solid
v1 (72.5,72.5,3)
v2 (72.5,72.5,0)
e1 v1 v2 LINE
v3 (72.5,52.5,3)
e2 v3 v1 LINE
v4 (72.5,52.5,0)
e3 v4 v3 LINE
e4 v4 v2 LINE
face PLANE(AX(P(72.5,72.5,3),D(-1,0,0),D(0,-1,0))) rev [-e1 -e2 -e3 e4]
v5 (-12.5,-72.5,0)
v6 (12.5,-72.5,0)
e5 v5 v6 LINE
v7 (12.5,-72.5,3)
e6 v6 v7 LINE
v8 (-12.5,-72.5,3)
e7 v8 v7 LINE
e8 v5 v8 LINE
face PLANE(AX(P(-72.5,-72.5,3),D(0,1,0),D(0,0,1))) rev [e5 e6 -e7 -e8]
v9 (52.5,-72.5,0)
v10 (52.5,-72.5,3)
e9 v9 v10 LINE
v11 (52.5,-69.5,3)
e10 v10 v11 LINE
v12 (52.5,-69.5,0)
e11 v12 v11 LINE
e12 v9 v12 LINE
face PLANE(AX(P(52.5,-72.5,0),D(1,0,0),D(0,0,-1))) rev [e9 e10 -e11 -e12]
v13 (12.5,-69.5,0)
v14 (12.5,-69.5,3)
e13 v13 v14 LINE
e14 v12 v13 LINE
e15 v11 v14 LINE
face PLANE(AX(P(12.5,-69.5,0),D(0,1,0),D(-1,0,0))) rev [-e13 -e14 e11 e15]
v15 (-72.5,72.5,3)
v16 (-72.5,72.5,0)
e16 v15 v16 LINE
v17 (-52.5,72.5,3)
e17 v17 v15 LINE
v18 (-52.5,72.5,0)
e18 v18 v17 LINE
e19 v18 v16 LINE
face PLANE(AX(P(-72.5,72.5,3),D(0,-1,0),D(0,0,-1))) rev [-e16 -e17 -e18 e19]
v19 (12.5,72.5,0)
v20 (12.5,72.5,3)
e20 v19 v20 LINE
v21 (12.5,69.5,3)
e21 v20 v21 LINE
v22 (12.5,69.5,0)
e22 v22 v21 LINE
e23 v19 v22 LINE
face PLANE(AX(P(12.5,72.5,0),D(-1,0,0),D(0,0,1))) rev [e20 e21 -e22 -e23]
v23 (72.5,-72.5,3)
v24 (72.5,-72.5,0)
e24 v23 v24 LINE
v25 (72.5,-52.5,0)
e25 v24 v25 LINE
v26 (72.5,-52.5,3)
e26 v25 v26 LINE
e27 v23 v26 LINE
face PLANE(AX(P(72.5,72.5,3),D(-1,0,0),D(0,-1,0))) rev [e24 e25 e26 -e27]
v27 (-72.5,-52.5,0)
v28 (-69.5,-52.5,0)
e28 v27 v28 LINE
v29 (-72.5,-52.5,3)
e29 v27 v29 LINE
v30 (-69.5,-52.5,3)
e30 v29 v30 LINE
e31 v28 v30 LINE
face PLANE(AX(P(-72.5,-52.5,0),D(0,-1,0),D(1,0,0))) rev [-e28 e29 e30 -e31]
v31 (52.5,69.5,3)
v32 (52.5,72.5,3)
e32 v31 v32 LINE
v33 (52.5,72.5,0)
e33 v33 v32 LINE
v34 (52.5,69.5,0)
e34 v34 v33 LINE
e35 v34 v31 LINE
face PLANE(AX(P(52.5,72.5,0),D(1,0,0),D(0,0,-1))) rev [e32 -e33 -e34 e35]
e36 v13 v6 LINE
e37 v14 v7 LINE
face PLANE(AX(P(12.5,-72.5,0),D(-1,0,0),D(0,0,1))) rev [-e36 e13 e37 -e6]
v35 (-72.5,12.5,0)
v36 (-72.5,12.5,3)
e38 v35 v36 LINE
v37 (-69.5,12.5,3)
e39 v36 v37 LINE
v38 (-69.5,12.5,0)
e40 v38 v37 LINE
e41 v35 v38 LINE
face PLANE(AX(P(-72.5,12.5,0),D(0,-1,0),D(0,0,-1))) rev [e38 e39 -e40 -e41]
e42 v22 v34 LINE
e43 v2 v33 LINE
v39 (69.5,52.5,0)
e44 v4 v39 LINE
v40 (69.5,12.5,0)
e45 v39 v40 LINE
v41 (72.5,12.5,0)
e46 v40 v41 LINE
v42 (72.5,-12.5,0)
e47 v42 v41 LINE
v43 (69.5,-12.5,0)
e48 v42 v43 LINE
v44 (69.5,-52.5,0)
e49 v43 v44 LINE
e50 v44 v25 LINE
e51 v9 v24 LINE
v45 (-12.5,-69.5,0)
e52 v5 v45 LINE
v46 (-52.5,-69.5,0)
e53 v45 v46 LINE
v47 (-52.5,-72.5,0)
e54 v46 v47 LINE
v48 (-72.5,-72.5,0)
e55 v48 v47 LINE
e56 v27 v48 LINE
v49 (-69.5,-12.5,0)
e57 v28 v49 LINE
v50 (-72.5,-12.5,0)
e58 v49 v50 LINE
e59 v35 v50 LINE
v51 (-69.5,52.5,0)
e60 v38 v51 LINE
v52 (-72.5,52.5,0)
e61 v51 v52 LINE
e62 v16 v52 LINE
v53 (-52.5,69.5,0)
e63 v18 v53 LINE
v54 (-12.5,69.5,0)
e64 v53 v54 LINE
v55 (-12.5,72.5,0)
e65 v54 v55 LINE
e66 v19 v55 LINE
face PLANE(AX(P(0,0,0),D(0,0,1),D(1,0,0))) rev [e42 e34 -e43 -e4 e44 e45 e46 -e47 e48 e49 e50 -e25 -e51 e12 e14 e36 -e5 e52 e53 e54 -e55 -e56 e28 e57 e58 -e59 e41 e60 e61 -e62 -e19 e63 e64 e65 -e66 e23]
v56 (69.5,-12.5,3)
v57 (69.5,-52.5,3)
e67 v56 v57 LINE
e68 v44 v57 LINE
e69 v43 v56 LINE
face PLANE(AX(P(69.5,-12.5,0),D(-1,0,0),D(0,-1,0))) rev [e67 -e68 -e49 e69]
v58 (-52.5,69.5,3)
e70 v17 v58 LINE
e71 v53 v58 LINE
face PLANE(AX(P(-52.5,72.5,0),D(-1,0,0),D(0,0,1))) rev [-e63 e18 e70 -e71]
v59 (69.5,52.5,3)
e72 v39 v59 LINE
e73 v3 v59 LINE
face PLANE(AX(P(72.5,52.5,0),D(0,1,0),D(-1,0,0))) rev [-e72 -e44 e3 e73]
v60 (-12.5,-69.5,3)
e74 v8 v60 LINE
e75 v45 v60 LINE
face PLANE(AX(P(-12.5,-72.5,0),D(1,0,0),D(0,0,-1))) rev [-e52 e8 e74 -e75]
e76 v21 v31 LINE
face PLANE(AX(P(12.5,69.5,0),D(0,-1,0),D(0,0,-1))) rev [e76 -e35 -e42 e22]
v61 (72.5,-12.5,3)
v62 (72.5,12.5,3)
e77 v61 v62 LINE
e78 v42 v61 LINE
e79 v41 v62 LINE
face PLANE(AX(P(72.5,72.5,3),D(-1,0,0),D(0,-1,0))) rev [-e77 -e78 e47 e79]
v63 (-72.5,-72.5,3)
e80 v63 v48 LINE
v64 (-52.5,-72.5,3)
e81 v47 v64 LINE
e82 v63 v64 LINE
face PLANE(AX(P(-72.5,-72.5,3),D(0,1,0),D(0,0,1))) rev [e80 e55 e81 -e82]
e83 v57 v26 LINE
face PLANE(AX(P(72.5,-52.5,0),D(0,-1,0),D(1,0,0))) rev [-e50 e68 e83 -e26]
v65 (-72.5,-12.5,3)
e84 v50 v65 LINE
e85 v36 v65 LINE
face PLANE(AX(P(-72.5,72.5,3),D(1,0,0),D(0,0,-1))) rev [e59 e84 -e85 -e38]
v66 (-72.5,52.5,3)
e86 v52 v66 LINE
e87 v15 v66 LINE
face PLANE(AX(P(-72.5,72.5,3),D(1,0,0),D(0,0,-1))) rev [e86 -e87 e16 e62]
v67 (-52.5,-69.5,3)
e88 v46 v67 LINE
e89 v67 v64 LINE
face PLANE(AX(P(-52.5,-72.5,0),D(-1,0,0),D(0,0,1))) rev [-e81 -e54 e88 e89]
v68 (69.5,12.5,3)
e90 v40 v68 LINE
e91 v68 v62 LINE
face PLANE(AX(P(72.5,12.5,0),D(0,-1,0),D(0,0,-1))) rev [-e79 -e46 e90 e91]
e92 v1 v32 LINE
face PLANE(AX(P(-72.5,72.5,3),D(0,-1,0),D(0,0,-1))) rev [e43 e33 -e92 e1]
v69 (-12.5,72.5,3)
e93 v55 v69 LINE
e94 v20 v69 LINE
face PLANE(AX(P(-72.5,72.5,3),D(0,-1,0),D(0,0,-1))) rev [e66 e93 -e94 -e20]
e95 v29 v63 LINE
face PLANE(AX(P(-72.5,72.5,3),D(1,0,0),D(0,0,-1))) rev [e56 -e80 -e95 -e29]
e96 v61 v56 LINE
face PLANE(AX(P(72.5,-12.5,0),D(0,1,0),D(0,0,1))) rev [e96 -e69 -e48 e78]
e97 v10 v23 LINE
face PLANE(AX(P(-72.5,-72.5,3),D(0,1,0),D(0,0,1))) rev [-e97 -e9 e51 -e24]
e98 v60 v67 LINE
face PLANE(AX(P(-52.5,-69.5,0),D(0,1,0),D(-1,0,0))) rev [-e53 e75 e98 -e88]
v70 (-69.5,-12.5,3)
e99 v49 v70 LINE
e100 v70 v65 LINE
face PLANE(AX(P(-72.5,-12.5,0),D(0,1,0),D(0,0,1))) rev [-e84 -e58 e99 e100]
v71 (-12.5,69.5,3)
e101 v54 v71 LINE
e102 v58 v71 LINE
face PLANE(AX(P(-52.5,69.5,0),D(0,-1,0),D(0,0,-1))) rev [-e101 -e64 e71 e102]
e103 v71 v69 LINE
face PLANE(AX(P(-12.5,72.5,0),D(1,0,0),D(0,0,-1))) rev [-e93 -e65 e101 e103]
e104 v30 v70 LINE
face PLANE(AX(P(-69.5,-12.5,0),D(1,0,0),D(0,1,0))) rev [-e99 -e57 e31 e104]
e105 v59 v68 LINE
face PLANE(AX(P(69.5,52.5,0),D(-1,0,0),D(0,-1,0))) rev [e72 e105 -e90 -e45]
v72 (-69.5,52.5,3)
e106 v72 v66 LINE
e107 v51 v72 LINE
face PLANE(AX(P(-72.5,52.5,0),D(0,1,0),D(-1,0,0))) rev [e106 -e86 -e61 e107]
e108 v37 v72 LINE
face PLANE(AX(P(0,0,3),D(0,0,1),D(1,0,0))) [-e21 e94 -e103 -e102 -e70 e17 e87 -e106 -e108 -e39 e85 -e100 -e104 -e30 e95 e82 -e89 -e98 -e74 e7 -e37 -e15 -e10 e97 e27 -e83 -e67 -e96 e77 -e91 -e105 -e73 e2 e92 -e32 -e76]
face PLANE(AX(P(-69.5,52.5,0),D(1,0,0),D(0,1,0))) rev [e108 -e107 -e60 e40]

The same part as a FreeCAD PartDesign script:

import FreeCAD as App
import Part
import Sketcher
from FreeCAD import Vector

doc = App.newDocument("Part")
params = doc.addObject("Spreadsheet::Sheet", "Params")
for row, (alias, value) in enumerate([
    ("sketch1_width", "145 mm"),
    ("pad1_length", "3 mm"),
    ("sketch2_width", "40 mm"),
    ("sketch2_width2", "3 mm"),
    ("pocket1_length", "3 mm"),
], start=1):
    params.set(f"A{row}", alias)
    params.set(f"B{row}", "=" + value)
    params.setAlias(f"B{row}", alias)

body = doc.addObject("PartDesign::Body", "Body")

# Sketch on XY plane
sketch1 = body.newObject("Sketcher::SketchObject", "Sketch")
sketch1.AttachmentSupport = (doc.getObject("XY_Plane"), [""])
sketch1.MapMode = "FlatFace"
sketch1.addGeometry(Part.LineSegment(Vector(-72, 72, 0), Vector(-72, -72, 0)), False)
sketch1.addGeometry(Part.LineSegment(Vector(-72, -72, 0), Vector(72, -72, 0)), False)
sketch1.addGeometry(Part.LineSegment(Vector(72, -72, 0), Vector(72, 72, 0)), False)
sketch1.addGeometry(Part.LineSegment(Vector(72, 72, 0), Vector(-72, 72, 0)), False)
sketch1.addConstraint(Sketcher.Constraint("Coincident", 0, 2, 1, 1))
sketch1.addConstraint(Sketcher.Constraint("Coincident", 1, 2, 2, 1))
sketch1.addConstraint(Sketcher.Constraint("Coincident", 2, 2, 3, 1))
sketch1.addConstraint(Sketcher.Constraint("Coincident", 3, 2, 0, 1))
sketch1.addConstraint(Sketcher.Constraint("Vertical", 0))
sketch1.addConstraint(Sketcher.Constraint("Horizontal", 1))
sketch1.addConstraint(Sketcher.Constraint("Vertical", 2))
sketch1.addConstraint(Sketcher.Constraint("Horizontal", 3))
sketch1.addConstraint(Sketcher.Constraint("Symmetric", 0, 2, 2, 2, -1, 1))
sketch1.addConstraint(Sketcher.Constraint("Equal", 3, 0))
sketch1.addConstraint(Sketcher.Constraint("DistanceX", 1, 1, 1, 2, 145.0))
sketch1.setExpression("Constraints[10]", "Params.sketch1_width")
pad1 = body.newObject("PartDesign::Pad", "Pad")
pad1.Profile = sketch1
pad1.setExpression("Length", "Params.pad1_length")

# Sketch on XY plane
sketch2 = body.newObject("Sketcher::SketchObject", "Sketch001")
sketch2.AttachmentSupport = (doc.getObject("XY_Plane"), [""])
sketch2.MapMode = "FlatFace"
sketch2.AttachmentOffset = App.Placement(Vector(0, 0, 3), App.Rotation())
sketch2.addGeometry(Part.LineSegment(Vector(-52.5, 72.5, 0), Vector(-52.5, 69.5, 0)), False)
sketch2.addGeometry(Part.LineSegment(Vector(-52.5, 69.5, 0), Vector(-12.5, 69.5, 0)), False)
sketch2.addGeometry(Part.LineSegment(Vector(-12.5, 69.5, 0), Vector(-12.5, 72.5, 0)), False)
sketch2.addGeometry(Part.LineSegment(Vector(-12.5, 72.5, 0), Vector(-52.5, 72.5, 0)), False)
sketch2.addGeometry(Part.LineSegment(Vector(12.5, 72.5, 0), Vector(12.5, 69.5, 0)), False)
sketch2.addGeometry(Part.LineSegment(Vector(12.5, 69.5, 0), Vector(52.5, 69.5, 0)), False)
sketch2.addGeometry(Part.LineSegment(Vector(52.5, 69.5, 0), Vector(52.5, 72.5, 0)), False)
sketch2.addGeometry(Part.LineSegment(Vector(52.5, 72.5, 0), Vector(12.5, 72.5, 0)), False)
sketch2.addGeometry(Part.LineSegment(Vector(-72.5, 52.5, 0), Vector(-72.5, 12.5, 0)), False)
sketch2.addGeometry(Part.LineSegment(Vector(-72.5, 12.5, 0), Vector(-69.5, 12.5, 0)), False)
sketch2.addGeometry(Part.LineSegment(Vector(-69.5, 12.5, 0), Vector(-69.5, 52.5, 0)), False)
sketch2.addGeometry(Part.LineSegment(Vector(-69.5, 52.5, 0), Vector(-72.5, 52.5, 0)), False)
sketch2.addGeometry(Part.LineSegment(Vector(-72.5, -12.5, 0), Vector(-72.5, -52.5, 0)), False)
sketch2.addGeometry(Part.LineSegment(Vector(-72.5, -52.5, 0), Vector(-69.5, -52.5, 0)), False)
sketch2.addGeometry(Part.LineSegment(Vector(-69.5, -52.5, 0), Vector(-69.5, -12.5, 0)), False)
sketch2.addGeometry(Part.LineSegment(Vector(-69.5, -12.5, 0), Vector(-72.5, -12.5, 0)), False)
sketch2.addGeometry(Part.LineSegment(Vector(12.5, -69.5, 0), Vector(12.5, -72.5, 0)), False)
sketch2.addGeometry(Part.LineSegment(Vector(12.5, -72.5, 0), Vector(52.5, -72.5, 0)), False)
sketch2.addGeometry(Part.LineSegment(Vector(52.5, -72.5, 0), Vector(52.5, -69.5, 0)), False)
sketch2.addGeometry(Part.LineSegment(Vector(52.5, -69.5, 0), Vector(12.5, -69.5, 0)), False)
sketch2.addGeometry(Part.LineSegment(Vector(-52.5, -69.5, 0), Vector(-52.5, -72.5, 0)), False)
sketch2.addGeometry(Part.LineSegment(Vector(-52.5, -72.5, 0), Vector(-12.5, -72.5, 0)), False)
sketch2.addGeometry(Part.LineSegment(Vector(-12.5, -72.5, 0), Vector(-12.5, -69.5, 0)), False)
sketch2.addGeometry(Part.LineSegment(Vector(-12.5, -69.5, 0), Vector(-52.5, -69.5, 0)), False)
sketch2.addGeometry(Part.LineSegment(Vector(69.5, -12.5, 0), Vector(69.5, -52.5, 0)), False)
sketch2.addGeometry(Part.LineSegment(Vector(69.5, -52.5, 0), Vector(72.5, -52.5, 0)), False)
sketch2.addGeometry(Part.LineSegment(Vector(72.5, -52.5, 0), Vector(72.5, -12.5, 0)), False)
sketch2.addGeometry(Part.LineSegment(Vector(72.5, -12.5, 0), Vector(69.5, -12.5, 0)), False)
sketch2.addGeometry(Part.LineSegment(Vector(69.5, 52.5, 0), Vector(69.5, 12.5, 0)), False)
sketch2.addGeometry(Part.LineSegment(Vector(69.5, 12.5, 0), Vector(72.5, 12.5, 0)), False)
sketch2.addGeometry(Part.LineSegment(Vector(72.5, 12.5, 0), Vector(72.5, 52.5, 0)), False)
sketch2.addGeometry(Part.LineSegment(Vector(72.5, 52.5, 0), Vector(69.5, 52.5, 0)), False)
sketch2.addConstraint(Sketcher.Constraint("Coincident", 0, 2, 1, 1))
sketch2.addConstraint(Sketcher.Constraint("Coincident", 1, 2, 2, 1))
sketch2.addConstraint(Sketcher.Constraint("Coincident", 2, 2, 3, 1))
sketch2.addConstraint(Sketcher.Constraint("Coincident", 3, 2, 0, 1))
sketch2.addConstraint(Sketcher.Constraint("Coincident", 4, 2, 5, 1))
sketch2.addConstraint(Sketcher.Constraint("Coincident", 5, 2, 6, 1))
sketch2.addConstraint(Sketcher.Constraint("Coincident", 6, 2, 7, 1))
sketch2.addConstraint(Sketcher.Constraint("Coincident", 7, 2, 4, 1))
sketch2.addConstraint(Sketcher.Constraint("Coincident", 8, 2, 9, 1))
sketch2.addConstraint(Sketcher.Constraint("Coincident", 9, 2, 10, 1))
sketch2.addConstraint(Sketcher.Constraint("Coincident", 10, 2, 11, 1))
sketch2.addConstraint(Sketcher.Constraint("Coincident", 11, 2, 8, 1))
sketch2.addConstraint(Sketcher.Constraint("Coincident", 12, 2, 13, 1))
sketch2.addConstraint(Sketcher.Constraint("Coincident", 13, 2, 14, 1))
sketch2.addConstraint(Sketcher.Constraint("Coincident", 14, 2, 15, 1))
sketch2.addConstraint(Sketcher.Constraint("Coincident", 15, 2, 12, 1))
sketch2.addConstraint(Sketcher.Constraint("Coincident", 16, 2, 17, 1))
sketch2.addConstraint(Sketcher.Constraint("Coincident", 17, 2, 18, 1))
sketch2.addConstraint(Sketcher.Constraint("Coincident", 18, 2, 19, 1))
sketch2.addConstraint(Sketcher.Constraint("Coincident", 19, 2, 16, 1))
sketch2.addConstraint(Sketcher.Constraint("Coincident", 20, 2, 21, 1))
sketch2.addConstraint(Sketcher.Constraint("Coincident", 21, 2, 22, 1))
sketch2.addConstraint(Sketcher.Constraint("Coincident", 22, 2, 23, 1))
sketch2.addConstraint(Sketcher.Constraint("Coincident", 23, 2, 20, 1))
sketch2.addConstraint(Sketcher.Constraint("Coincident", 24, 2, 25, 1))
sketch2.addConstraint(Sketcher.Constraint("Coincident", 25, 2, 26, 1))
sketch2.addConstraint(Sketcher.Constraint("Coincident", 26, 2, 27, 1))
sketch2.addConstraint(Sketcher.Constraint("Coincident", 27, 2, 24, 1))
sketch2.addConstraint(Sketcher.Constraint("Coincident", 28, 2, 29, 1))
sketch2.addConstraint(Sketcher.Constraint("Coincident", 29, 2, 30, 1))
sketch2.addConstraint(Sketcher.Constraint("Coincident", 30, 2, 31, 1))
sketch2.addConstraint(Sketcher.Constraint("Coincident", 31, 2, 28, 1))
sketch2.addConstraint(Sketcher.Constraint("Vertical", 0))
sketch2.addConstraint(Sketcher.Constraint("Horizontal", 1))
sketch2.addConstraint(Sketcher.Constraint("Vertical", 2))
sketch2.addConstraint(Sketcher.Constraint("Horizontal", 3))
sketch2.addConstraint(Sketcher.Constraint("Vertical", 4))
sketch2.addConstraint(Sketcher.Constraint("Horizontal", 5))
sketch2.addConstraint(Sketcher.Constraint("Vertical", 6))
sketch2.addConstraint(Sketcher.Constraint("Horizontal", 7))
sketch2.addConstraint(Sketcher.Constraint("Vertical", 8))
sketch2.addConstraint(Sketcher.Constraint("Horizontal", 9))
sketch2.addConstraint(Sketcher.Constraint("Vertical", 10))
sketch2.addConstraint(Sketcher.Constraint("Horizontal", 11))
sketch2.addConstraint(Sketcher.Constraint("Vertical", 12))
sketch2.addConstraint(Sketcher.Constraint("Horizontal", 13))
sketch2.addConstraint(Sketcher.Constraint("Vertical", 14))
sketch2.addConstraint(Sketcher.Constraint("Horizontal", 15))
sketch2.addConstraint(Sketcher.Constraint("Vertical", 16))
sketch2.addConstraint(Sketcher.Constraint("Horizontal", 17))
sketch2.addConstraint(Sketcher.Constraint("Vertical", 18))
sketch2.addConstraint(Sketcher.Constraint("Horizontal", 19))
sketch2.addConstraint(Sketcher.Constraint("Vertical", 20))
sketch2.addConstraint(Sketcher.Constraint("Horizontal", 21))
sketch2.addConstraint(Sketcher.Constraint("Vertical", 22))
sketch2.addConstraint(Sketcher.Constraint("Horizontal", 23))
sketch2.addConstraint(Sketcher.Constraint("Vertical", 24))
sketch2.addConstraint(Sketcher.Constraint("Horizontal", 25))
sketch2.addConstraint(Sketcher.Constraint("Vertical", 26))
sketch2.addConstraint(Sketcher.Constraint("Horizontal", 27))
sketch2.addConstraint(Sketcher.Constraint("Vertical", 28))
sketch2.addConstraint(Sketcher.Constraint("Horizontal", 29))
sketch2.addConstraint(Sketcher.Constraint("Vertical", 30))
sketch2.addConstraint(Sketcher.Constraint("Horizontal", 31))
sketch2.addConstraint(Sketcher.Constraint("Symmetric", 2, 2, 16, 2, -1, 1))
sketch2.addConstraint(Sketcher.Constraint("Symmetric", 0, 2, 18, 2, -1, 1))
sketch2.addConstraint(Sketcher.Constraint("Symmetric", 6, 2, 20, 2, -1, 1))
sketch2.addConstraint(Sketcher.Constraint("Symmetric", 4, 2, 22, 2, -1, 1))
sketch2.addConstraint(Sketcher.Constraint("Symmetric", 10, 2, 24, 2, -1, 1))
sketch2.addConstraint(Sketcher.Constraint("Symmetric", 8, 2, 26, 2, -1, 1))
sketch2.addConstraint(Sketcher.Constraint("Symmetric", 14, 2, 28, 2, -1, 1))
sketch2.addConstraint(Sketcher.Constraint("Symmetric", 12, 2, 30, 2, -1, 1))
sketch2.addConstraint(Sketcher.Constraint("Symmetric", 1, 2, 4, 2, -2))
sketch2.addConstraint(Sketcher.Constraint("Symmetric", 3, 2, 6, 2, -2))
sketch2.addConstraint(Sketcher.Constraint("Symmetric", 13, 2, 24, 2, -2))
sketch2.addConstraint(Sketcher.Constraint("Symmetric", 15, 2, 26, 2, -2))
sketch2.addConstraint(Sketcher.Constraint("Equal", 31, 0))
sketch2.addConstraint(Sketcher.Constraint("Equal", 23, 8))
sketch2.addConstraint(Sketcher.Constraint("DistanceX", 1, 1, 1, 2, 40.0))
sketch2.addConstraint(Sketcher.Constraint("DistanceX", 9, 1, 9, 2, 3.0))
sketch2.addConstraint(Sketcher.Constraint("DistanceX", 1, 2, 4, 2, 25.0))
sketch2.addConstraint(Sketcher.Constraint("DistanceX", 8, 2, 0, 2, 20.0))
sketch2.addConstraint(Sketcher.Constraint("DistanceY", 8, 2, 0, 2, 57.0))
sketch2.addConstraint(Sketcher.Constraint("DistanceY", 12, 2, 8, 2, 65.0))
sketch2.setExpression("Constraints[78]", "Params.sketch2_width")
sketch2.setExpression("Constraints[79]", "Params.sketch2_width2")
pocket1 = body.newObject("PartDesign::Pocket", "Pocket")
pocket1.Profile = sketch2
pocket1.setExpression("Length", "Params.pocket1_length")

doc.recompute()
